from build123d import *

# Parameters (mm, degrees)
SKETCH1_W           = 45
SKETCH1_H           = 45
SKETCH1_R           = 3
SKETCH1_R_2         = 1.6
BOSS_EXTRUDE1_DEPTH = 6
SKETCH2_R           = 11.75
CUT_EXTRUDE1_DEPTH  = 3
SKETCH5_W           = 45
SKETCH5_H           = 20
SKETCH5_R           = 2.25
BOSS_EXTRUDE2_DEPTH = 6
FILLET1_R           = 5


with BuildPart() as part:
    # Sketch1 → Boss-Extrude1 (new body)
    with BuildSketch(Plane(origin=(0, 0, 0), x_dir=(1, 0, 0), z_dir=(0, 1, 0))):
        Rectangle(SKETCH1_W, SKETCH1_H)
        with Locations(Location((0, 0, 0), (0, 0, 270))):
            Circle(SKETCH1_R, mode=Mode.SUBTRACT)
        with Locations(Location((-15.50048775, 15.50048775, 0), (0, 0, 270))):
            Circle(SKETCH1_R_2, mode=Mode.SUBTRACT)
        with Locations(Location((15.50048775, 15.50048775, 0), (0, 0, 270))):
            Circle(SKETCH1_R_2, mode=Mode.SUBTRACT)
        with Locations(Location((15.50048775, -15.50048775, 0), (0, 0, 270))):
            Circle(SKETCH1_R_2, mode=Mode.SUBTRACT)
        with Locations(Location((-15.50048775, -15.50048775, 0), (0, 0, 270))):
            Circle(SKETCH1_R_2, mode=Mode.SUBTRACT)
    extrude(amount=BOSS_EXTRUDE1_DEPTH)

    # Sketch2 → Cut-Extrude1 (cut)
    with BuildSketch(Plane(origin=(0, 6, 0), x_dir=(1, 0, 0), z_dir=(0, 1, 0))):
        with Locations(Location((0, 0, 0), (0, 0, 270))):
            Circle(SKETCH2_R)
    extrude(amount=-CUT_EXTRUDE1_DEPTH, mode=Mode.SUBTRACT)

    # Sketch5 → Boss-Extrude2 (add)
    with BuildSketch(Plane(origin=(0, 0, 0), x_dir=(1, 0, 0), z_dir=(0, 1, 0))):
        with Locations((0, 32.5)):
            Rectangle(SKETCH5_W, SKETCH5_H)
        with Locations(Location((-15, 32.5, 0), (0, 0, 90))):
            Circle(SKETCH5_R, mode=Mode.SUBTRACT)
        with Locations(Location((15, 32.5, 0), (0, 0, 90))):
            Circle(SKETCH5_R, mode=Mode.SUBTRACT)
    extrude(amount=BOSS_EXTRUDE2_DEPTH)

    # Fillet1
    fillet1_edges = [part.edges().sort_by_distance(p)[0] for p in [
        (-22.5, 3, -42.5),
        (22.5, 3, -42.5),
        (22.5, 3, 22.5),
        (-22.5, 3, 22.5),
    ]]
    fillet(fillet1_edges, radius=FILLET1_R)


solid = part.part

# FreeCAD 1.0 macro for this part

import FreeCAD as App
import Part
import Sketcher


def edges_at(feature, points):
    """Names of the edges that pass closest to the given points."""
    edges = feature.Shape.Edges
    near = lambda p: min(range(len(edges)), key=lambda i: edges[i].distToShape(Part.Vertex(*p))[0])
    return sorted({f"Edge{near(p) + 1}" for p in points})

doc = App.newDocument("Part")
params = doc.addObject("Spreadsheet::Sheet", "Params")
for row, (alias, value) in enumerate([
    ("sketch1_diameter", "6 mm"),
    ("sketch1_diameter2", "3.2 mm"),
    ("sketch1_width", "45 mm"),
    ("pad1_length", "6 mm"),
    ("sketch2_diameter", "23.5 mm"),
    ("pocket1_length", "3 mm"),
    ("sketch3_diameter", "4.5 mm"),
    ("sketch3_width", "45 mm"),
    ("sketch3_height", "20 mm"),
    ("pad2_length", "6 mm"),
    ("fillet_radius", "5 mm"),
], start=1):
    params.set(f"A{row}", alias)
    params.set(f"B{row}", "=" + value)
    params.setAlias(f"B{row}", alias)

body = doc.addObject("PartDesign::Body", "Body")

sketch1 = doc.addObject("Sketcher::SketchObject", "Sketch")
body.addObject(sketch1)
sketch1.AttachmentSupport = (doc.XZ_Plane, [""])
sketch1.MapMode = "FlatFace"
sketch1.addGeometry([
    Part.LineSegment(App.Vector(-22.5, -22.5, 0), App.Vector(-22.5, 22.5, 0)),
    Part.LineSegment(App.Vector(-22.5, 22.5, 0), App.Vector(22.5, 22.5, 0)),
    Part.LineSegment(App.Vector(22.5, 22.5, 0), App.Vector(22.5, -22.5, 0)),
    Part.LineSegment(App.Vector(22.5, -22.5, 0), App.Vector(-22.5, -22.5, 0)),
    Part.Circle(App.Vector(-15.5, 15.5, 0), App.Vector(0, 0, 1), 1.6),
    Part.Circle(App.Vector(15.5, 15.5, 0), App.Vector(0, 0, 1), 1.6),
    Part.Circle(App.Vector(-15.5, -15.5, 0), App.Vector(0, 0, 1), 1.6),
    Part.Circle(App.Vector(0, 0, 0), App.Vector(0, 0, 1), 3),
    Part.Circle(App.Vector(15.5, -15.5, 0), App.Vector(0, 0, 1), 1.6),
], False)
sketch1.addConstraint([
    Sketcher.Constraint("Coincident", 0, 2, 1, 1),
    Sketcher.Constraint("Coincident", 1, 2, 2, 1),
    Sketcher.Constraint("Coincident", 2, 2, 3, 1),
    Sketcher.Constraint("Coincident", 3, 2, 0, 1),
    Sketcher.Constraint("Vertical", 0),
    Sketcher.Constraint("Horizontal", 1),
    Sketcher.Constraint("Vertical", 2),
    Sketcher.Constraint("Horizontal", 3),
    Sketcher.Constraint("Coincident", 7, 3, -1, 1),
    Sketcher.Constraint("Equal", 4, 5),
    Sketcher.Constraint("Equal", 5, 6),
    Sketcher.Constraint("Equal", 6, 8),
    Sketcher.Constraint("Symmetric", 5, 3, 6, 3, -1, 1),
    Sketcher.Constraint("Symmetric", 4, 3, 8, 3, -1, 1),
    Sketcher.Constraint("Symmetric", 0, 2, 2, 2, -1, 1),
    Sketcher.Constraint("Symmetric", 4, 3, 5, 3, -2),
    Sketcher.Constraint("Equal", 3, 0),
    Sketcher.Constraint("Diameter", 7, 6.0),
    Sketcher.Constraint("Diameter", 4, 3.2),
    Sketcher.Constraint("DistanceX", 1, 1, 1, 2, 45.0),
    Sketcher.Constraint("DistanceX", 4, 3, -1, 1, 15.500488),
    Sketcher.Constraint("DistanceY", -1, 1, 4, 3, 15.500488),
])
sketch1.setExpression("Constraints[17]", "Params.sketch1_diameter")
sketch1.setExpression("Constraints[18]", "Params.sketch1_diameter2")
sketch1.setExpression("Constraints[19]", "Params.sketch1_width")
pad1 = doc.addObject("PartDesign::Pad", "Pad")
body.addObject(pad1)
pad1.Profile = sketch1
pad1.setExpression("Length", "Params.pad1_length")
pad1.Reversed = True

sketch2 = doc.addObject("Sketcher::SketchObject", "Sketch001")
body.addObject(sketch2)
sketch2.AttachmentSupport = (doc.XZ_Plane, [""])
sketch2.MapMode = "FlatFace"
sketch2.AttachmentOffset = App.Placement(App.Vector(0, 0, -6), App.Rotation())
sketch2.addGeometry(Part.Circle(App.Vector(0, 0, 0), App.Vector(0, 0, 1), 12), False)
sketch2.addConstraint([
    Sketcher.Constraint("Coincident", 0, 3, -1, 1),
    Sketcher.Constraint("Diameter", 0, 23.5),
])
sketch2.setExpression("Constraints[1]", "Params.sketch2_diameter")
pocket1 = doc.addObject("PartDesign::Pocket", "Pocket")
body.addObject(pocket1)
pocket1.Profile = sketch2
pocket1.setExpression("Length", "Params.pocket1_length")
pocket1.Reversed = True

sketch3 = doc.addObject("Sketcher::SketchObject", "Sketch002")
body.addObject(sketch3)
sketch3.AttachmentSupport = (doc.XZ_Plane, [""])
sketch3.MapMode = "FlatFace"
sketch3.addGeometry([
    Part.LineSegment(App.Vector(-22.5, -42.5, 0), App.Vector(-22.5, -22.5, 0)),
    Part.LineSegment(App.Vector(-22.5, -22.5, 0), App.Vector(22.5, -22.5, 0)),
    Part.LineSegment(App.Vector(22.5, -22.5, 0), App.Vector(22.5, -42.5, 0)),
    Part.LineSegment(App.Vector(22.5, -42.5, 0), App.Vector(-22.5, -42.5, 0)),
    Part.Circle(App.Vector(-15, -32.5, 0), App.Vector(0, 0, 1), 2.2),
    Part.Circle(App.Vector(15, -32.5, 0), App.Vector(0, 0, 1), 2.2),
], False)
sketch3.addConstraint([
    Sketcher.Constraint("Coincident", 0, 2, 1, 1),
    Sketcher.Constraint("Coincident", 1, 2, 2, 1),
    Sketcher.Constraint("Coincident", 2, 2, 3, 1),
    Sketcher.Constraint("Coincident", 3, 2, 0, 1),
    Sketcher.Constraint("Vertical", 0),
    Sketcher.Constraint("Horizontal", 1),
    Sketcher.Constraint("Vertical", 2),
    Sketcher.Constraint("Horizontal", 3),
    Sketcher.Constraint("Equal", 4, 5),
    Sketcher.Constraint("Symmetric", 4, 3, 5, 3, -2),
    Sketcher.Constraint("Diameter", 4, 4.5),
    Sketcher.Constraint("DistanceX", 1, 1, 1, 2, 45.0),
    Sketcher.Constraint("DistanceY", 0, 1, 0, 2, 20.0),
    Sketcher.Constraint("DistanceX", 4, 3, -1, 1, 15.0),
    Sketcher.Constraint("DistanceY", 4, 3, 0, 2, 10.0),
    Sketcher.Constraint("DistanceY", 4, 3, -1, 1, 32.5),
    Sketcher.Constraint("DistanceX", 0, 2, -1, 1, 22.5),
])
sketch3.setExpression("Constraints[10]", "Params.sketch3_diameter")
sketch3.setExpression("Constraints[11]", "Params.sketch3_width")
sketch3.setExpression("Constraints[12]", "Params.sketch3_height")
pad2 = doc.addObject("PartDesign::Pad", "Pad001")
body.addObject(pad2)
pad2.Profile = sketch3
pad2.setExpression("Length", "Params.pad2_length")
pad2.Reversed = True
doc.recompute()

fillet = doc.addObject("PartDesign::Fillet", "Fillet")
body.addObject(fillet)
fillet.Base = (pad2, edges_at(pad2, [
    (-22.5, 3, -42.5),
    (22.5, 3, -42.5),
    (22.5, 3, 22.5),
    (-22.5, 3, 22.5),
]))
fillet.setExpression("Radius", "Params.fillet_radius")

doc.recompute()
